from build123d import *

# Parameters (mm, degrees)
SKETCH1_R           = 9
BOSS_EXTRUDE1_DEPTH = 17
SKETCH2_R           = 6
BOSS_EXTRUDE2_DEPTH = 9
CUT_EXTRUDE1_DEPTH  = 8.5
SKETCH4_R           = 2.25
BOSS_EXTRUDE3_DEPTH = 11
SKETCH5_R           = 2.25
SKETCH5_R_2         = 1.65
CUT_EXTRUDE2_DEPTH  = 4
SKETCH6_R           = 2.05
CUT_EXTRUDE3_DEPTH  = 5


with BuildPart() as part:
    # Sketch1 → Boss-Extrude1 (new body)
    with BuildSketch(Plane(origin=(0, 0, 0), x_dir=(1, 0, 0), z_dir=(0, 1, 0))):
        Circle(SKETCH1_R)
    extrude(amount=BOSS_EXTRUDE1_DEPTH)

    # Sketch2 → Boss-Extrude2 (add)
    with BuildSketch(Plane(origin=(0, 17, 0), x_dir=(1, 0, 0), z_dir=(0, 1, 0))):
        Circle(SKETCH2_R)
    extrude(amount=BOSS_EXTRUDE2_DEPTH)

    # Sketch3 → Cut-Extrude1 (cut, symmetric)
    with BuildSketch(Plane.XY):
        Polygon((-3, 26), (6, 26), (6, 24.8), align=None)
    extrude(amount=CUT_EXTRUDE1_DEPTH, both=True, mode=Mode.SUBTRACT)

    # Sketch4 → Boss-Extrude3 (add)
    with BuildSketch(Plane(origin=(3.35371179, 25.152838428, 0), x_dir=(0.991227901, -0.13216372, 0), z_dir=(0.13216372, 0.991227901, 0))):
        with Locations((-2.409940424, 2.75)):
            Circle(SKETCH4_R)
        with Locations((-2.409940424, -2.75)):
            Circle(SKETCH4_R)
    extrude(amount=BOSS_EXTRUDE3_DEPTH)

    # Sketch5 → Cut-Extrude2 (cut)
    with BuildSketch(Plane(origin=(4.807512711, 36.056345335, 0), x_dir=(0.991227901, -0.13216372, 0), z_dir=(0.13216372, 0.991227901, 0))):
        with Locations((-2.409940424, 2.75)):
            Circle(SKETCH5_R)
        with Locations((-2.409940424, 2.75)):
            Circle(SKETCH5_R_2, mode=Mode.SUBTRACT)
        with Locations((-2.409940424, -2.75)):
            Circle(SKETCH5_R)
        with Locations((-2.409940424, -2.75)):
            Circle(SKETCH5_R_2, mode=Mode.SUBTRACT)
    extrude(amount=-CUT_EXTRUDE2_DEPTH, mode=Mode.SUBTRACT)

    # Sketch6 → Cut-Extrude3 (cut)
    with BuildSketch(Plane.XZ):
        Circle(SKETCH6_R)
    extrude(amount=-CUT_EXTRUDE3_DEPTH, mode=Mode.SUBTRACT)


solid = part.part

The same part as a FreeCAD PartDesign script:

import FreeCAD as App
import Part
import Sketcher

V = App.Vector
Q = App.Units.Quantity


def add_polygon(sketch, points):
    """Adds a closed chain of lines whose ends are joined by coincident constraints."""
    first, n = sketch.GeometryCount, len(points)
    for a, b in zip(points, points[1:] + points[:1]):
        sketch.addGeometry(Part.LineSegment(App.Vector(*a, 0), App.Vector(*b, 0)), False)
    for i in range(n):
        sketch.addConstraint(Sketcher.Constraint("Coincident", first + i, 2, first + (i + 1) % n, 1))

doc = App.newDocument("Part")
body = doc.addObject("PartDesign::Body", "Body")

# Sketch on XZ plane
sketch1 = body.newObject("Sketcher::SketchObject", "Sketch")
sketch1.AttachmentSupport = (doc.getObject("XZ_Plane"), [""])
sketch1.MapMode = "FlatFace"
sketch1.addGeometry(Part.Circle(V(0, 0, 0), V(0, 0, 1), 9), False)
sketch1.addConstraint([
    Sketcher.Constraint("Coincident", 0, 3, -1, 1),
    Sketcher.Constraint("Diameter", 0, Q("18 mm")),
])
pad1 = body.newObject("PartDesign::Pad", "Pad")
pad1.Profile = sketch1
pad1.Length = 17
pad1.Reversed = True

# Sketch on XZ plane
sketch2 = body.newObject("Sketcher::SketchObject", "Sketch001")
sketch2.AttachmentSupport = (doc.getObject("XZ_Plane"), [""])
sketch2.MapMode = "FlatFace"
sketch2.AttachmentOffset = App.Placement(V(0, 0, -17), App.Rotation())
sketch2.addGeometry(Part.Circle(V(0, 0, 0), V(0, 0, 1), 6), False)
sketch2.addConstraint([
    Sketcher.Constraint("Coincident", 0, 3, -1, 1),
    Sketcher.Constraint("Diameter", 0, Q("12 mm")),
])
pad2 = body.newObject("PartDesign::Pad", "Pad001")
pad2.Profile = sketch2
pad2.Length = 9
pad2.Reversed = True

# Sketch on XY plane
sketch3 = body.newObject("Sketcher::SketchObject", "Sketch002")
sketch3.AttachmentSupport = (doc.getObject("XY_Plane"), [""])
sketch3.MapMode = "FlatFace"
add_polygon(sketch3, [(6, 26), (-3, 26), (6, 24.8)])  # lines 0-2
sketch3.addConstraint([
    Sketcher.Constraint("Horizontal", 0),
    Sketcher.Constraint("Vertical", 2),
    Sketcher.Constraint("DistanceX", 0, 2, 0, 1, Q("9 mm")),
    Sketcher.Constraint("DistanceY", 2, 1, 2, 2, Q("1.2 mm")),
    Sketcher.Constraint("DistanceX", 0, 2, -1, 1, Q("3 mm")),
    Sketcher.Constraint("DistanceY", -1, 1, 0, 2, Q("26 mm")),
])
pocket1 = body.newObject("PartDesign::Pocket", "Pocket")
pocket1.Profile = sketch3
pocket1.Length = 17
pocket1.Midplane = True

# Sketch on an angled plane
sketch4 = body.newObject("Sketcher::SketchObject", "Sketch003")
sketch4.Placement = App.Placement(V(3.353712, 25.152838, 0), App.Rotation(V(0.991227901, -0.13216372, 0), V(0, 0, -1.000000001), V(0.13216372, 0.991227901, 0), "ZXY"))
sketch4.addGeometry([
    Part.Circle(V(-2.4, 2.8, 0), V(0, 0, 1), 2.2),
    Part.Circle(V(-2.4, -2.8, 0), V(0, 0, 1), 2.2),
], False)
sketch4.addConstraint([
    Sketcher.Constraint("Equal", 0, 1),
    Sketcher.Constraint("Symmetric", 0, 3, 1, 3, -1),
    Sketcher.Constraint("Diameter", 0, Q("4.5 mm")),
    Sketcher.Constraint("DistanceY", 1, 3, 0, 3, Q("5.5 mm")),
    Sketcher.Constraint("DistanceX", 0, 3, -1, 1, Q("2.40994 mm")),
])
pad3 = body.newObject("PartDesign::Pad", "Pad002")
pad3.Profile = sketch4
pad3.Length = 11

# Sketch on an angled plane
sketch5 = body.newObject("Sketcher::SketchObject", "Sketch004")
sketch5.Placement = App.Placement(V(4.807513, 36.056345, 0), App.Rotation(V(0.991227901, -0.13216372, 0), V(0, 0, -1.000000001), V(0.13216372, 0.991227901, 0), "ZXY"))
sketch5.addGeometry([
    Part.Circle(V(-2.4, 2.8, 0), V(0, 0, 1), 2.2),
    Part.Circle(V(-2.4, 2.8, 0), V(0, 0, 1), 1.6),
    Part.Circle(V(-2.4, -2.8, 0), V(0, 0, 1), 2.2),
    Part.Circle(V(-2.4, -2.8, 0), V(0, 0, 1), 1.6),
], False)
sketch5.addConstraint([
    Sketcher.Constraint("Coincident", 1, 3, 0, 3),
    Sketcher.Constraint("Coincident", 3, 3, 2, 3),
    Sketcher.Constraint("Equal", 0, 2),
    Sketcher.Constraint("Equal", 1, 3),
    Sketcher.Constraint("Symmetric", 0, 3, 2, 3, -1),
    Sketcher.Constraint("Diameter", 0, Q("4.5 mm")),
    Sketcher.Constraint("Diameter", 1, Q("3.3 mm")),
    Sketcher.Constraint("DistanceY", 2, 3, 0, 3, Q("5.5 mm")),
    Sketcher.Constraint("DistanceX", 0, 3, -1, 1, Q("2.40994 mm")),
])
pocket2 = body.newObject("PartDesign::Pocket", "Pocket001")
pocket2.Profile = sketch5
pocket2.Length = 4

# Sketch on XZ plane
sketch6 = body.newObject("Sketcher::SketchObject", "Sketch005")
sketch6.AttachmentSupport = (doc.getObject("XZ_Plane"), [""])
sketch6.MapMode = "FlatFace"
sketch6.addGeometry(Part.Circle(V(0, 0, 0), V(0, 0, 1), 2), False)
sketch6.addConstraint([
    Sketcher.Constraint("Coincident", 0, 3, -1, 1),
    Sketcher.Constraint("Diameter", 0, Q("4.1 mm")),
])
pocket3 = body.newObject("PartDesign::Pocket", "Pocket002")
pocket3.Profile = sketch6
pocket3.Length = 5

doc.recompute()
